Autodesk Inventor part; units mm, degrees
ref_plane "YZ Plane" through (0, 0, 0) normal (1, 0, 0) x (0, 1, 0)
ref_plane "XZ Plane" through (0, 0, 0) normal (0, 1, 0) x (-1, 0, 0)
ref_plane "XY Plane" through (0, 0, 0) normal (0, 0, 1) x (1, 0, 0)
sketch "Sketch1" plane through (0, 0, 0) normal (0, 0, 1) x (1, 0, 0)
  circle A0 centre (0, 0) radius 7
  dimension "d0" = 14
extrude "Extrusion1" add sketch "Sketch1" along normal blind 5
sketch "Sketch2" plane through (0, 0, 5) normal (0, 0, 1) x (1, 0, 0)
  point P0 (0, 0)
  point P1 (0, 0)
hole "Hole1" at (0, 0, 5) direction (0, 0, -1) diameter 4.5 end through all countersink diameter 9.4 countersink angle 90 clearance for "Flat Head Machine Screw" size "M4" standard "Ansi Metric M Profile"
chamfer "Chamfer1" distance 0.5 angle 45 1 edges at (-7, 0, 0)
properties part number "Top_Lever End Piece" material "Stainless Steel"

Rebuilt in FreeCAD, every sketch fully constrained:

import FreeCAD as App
import Part
import Sketcher

V = App.Vector


def edges_at(feature, points):
    """Names of the edges that pass closest to the given points."""
    edges = feature.Shape.Edges
    near = lambda p: min(range(len(edges)), key=lambda i: edges[i].distToShape(Part.Vertex(*p))[0])
    return sorted({f"Edge{near(p) + 1}" for p in points})

doc = App.newDocument("Part")
body = doc.addObject("PartDesign::Body", "Body")

# Sketch on XY plane
sketch1 = body.newObject("Sketcher::SketchObject", "Sketch")
sketch1.AttachmentSupport = (doc.getObject("XY_Plane"), [""])
sketch1.MapMode = "FlatFace"
sketch1.addGeometry(Part.Circle(V(0, 0, 0), V(0, 0, 1), 7), False)
sketch1.addConstraint([
    Sketcher.Constraint("Coincident", 0, 3, -1, 1),
    Sketcher.Constraint("Diameter", 0, 14.0),
])
pad1 = body.newObject("PartDesign::Pad", "Pad")
pad1.Profile = sketch1
pad1.Length = 5

# Sketch on XY plane
sketch2 = body.newObject("Sketcher::SketchObject", "Sketch001")
sketch2.AttachmentSupport = (doc.getObject("XY_Plane"), [""])
sketch2.MapMode = "FlatFace"
sketch2.AttachmentOffset = App.Placement(V(0, 0, 5), App.Rotation())
sketch2.addGeometry(Part.Circle(V(0, 0, 0), V(0, 0, 1), 2.25), False)
sketch2.addConstraint([
    Sketcher.Constraint("Coincident", 0, 3, -1, 1),
    Sketcher.Constraint("Diameter", 0, 4.5),
])
doc.recompute()
hole = body.newObject("PartDesign::Hole", "Hole")
hole.Profile = sketch2
hole.ThreadType = "None"
hole.Diameter = 4.5
hole.DepthType = "ThroughAll"
hole.HoleCutType = "Countersink"
hole.HoleCutDiameter = 9.4
hole.HoleCutCountersinkAngle = 90
doc.recompute()

chamfer = body.newObject("PartDesign::Chamfer", "Chamfer")
chamfer.Base = (hole, edges_at(hole, [(-7, 0, 0)]))
chamfer.Size = 0.5

doc.recompute()
